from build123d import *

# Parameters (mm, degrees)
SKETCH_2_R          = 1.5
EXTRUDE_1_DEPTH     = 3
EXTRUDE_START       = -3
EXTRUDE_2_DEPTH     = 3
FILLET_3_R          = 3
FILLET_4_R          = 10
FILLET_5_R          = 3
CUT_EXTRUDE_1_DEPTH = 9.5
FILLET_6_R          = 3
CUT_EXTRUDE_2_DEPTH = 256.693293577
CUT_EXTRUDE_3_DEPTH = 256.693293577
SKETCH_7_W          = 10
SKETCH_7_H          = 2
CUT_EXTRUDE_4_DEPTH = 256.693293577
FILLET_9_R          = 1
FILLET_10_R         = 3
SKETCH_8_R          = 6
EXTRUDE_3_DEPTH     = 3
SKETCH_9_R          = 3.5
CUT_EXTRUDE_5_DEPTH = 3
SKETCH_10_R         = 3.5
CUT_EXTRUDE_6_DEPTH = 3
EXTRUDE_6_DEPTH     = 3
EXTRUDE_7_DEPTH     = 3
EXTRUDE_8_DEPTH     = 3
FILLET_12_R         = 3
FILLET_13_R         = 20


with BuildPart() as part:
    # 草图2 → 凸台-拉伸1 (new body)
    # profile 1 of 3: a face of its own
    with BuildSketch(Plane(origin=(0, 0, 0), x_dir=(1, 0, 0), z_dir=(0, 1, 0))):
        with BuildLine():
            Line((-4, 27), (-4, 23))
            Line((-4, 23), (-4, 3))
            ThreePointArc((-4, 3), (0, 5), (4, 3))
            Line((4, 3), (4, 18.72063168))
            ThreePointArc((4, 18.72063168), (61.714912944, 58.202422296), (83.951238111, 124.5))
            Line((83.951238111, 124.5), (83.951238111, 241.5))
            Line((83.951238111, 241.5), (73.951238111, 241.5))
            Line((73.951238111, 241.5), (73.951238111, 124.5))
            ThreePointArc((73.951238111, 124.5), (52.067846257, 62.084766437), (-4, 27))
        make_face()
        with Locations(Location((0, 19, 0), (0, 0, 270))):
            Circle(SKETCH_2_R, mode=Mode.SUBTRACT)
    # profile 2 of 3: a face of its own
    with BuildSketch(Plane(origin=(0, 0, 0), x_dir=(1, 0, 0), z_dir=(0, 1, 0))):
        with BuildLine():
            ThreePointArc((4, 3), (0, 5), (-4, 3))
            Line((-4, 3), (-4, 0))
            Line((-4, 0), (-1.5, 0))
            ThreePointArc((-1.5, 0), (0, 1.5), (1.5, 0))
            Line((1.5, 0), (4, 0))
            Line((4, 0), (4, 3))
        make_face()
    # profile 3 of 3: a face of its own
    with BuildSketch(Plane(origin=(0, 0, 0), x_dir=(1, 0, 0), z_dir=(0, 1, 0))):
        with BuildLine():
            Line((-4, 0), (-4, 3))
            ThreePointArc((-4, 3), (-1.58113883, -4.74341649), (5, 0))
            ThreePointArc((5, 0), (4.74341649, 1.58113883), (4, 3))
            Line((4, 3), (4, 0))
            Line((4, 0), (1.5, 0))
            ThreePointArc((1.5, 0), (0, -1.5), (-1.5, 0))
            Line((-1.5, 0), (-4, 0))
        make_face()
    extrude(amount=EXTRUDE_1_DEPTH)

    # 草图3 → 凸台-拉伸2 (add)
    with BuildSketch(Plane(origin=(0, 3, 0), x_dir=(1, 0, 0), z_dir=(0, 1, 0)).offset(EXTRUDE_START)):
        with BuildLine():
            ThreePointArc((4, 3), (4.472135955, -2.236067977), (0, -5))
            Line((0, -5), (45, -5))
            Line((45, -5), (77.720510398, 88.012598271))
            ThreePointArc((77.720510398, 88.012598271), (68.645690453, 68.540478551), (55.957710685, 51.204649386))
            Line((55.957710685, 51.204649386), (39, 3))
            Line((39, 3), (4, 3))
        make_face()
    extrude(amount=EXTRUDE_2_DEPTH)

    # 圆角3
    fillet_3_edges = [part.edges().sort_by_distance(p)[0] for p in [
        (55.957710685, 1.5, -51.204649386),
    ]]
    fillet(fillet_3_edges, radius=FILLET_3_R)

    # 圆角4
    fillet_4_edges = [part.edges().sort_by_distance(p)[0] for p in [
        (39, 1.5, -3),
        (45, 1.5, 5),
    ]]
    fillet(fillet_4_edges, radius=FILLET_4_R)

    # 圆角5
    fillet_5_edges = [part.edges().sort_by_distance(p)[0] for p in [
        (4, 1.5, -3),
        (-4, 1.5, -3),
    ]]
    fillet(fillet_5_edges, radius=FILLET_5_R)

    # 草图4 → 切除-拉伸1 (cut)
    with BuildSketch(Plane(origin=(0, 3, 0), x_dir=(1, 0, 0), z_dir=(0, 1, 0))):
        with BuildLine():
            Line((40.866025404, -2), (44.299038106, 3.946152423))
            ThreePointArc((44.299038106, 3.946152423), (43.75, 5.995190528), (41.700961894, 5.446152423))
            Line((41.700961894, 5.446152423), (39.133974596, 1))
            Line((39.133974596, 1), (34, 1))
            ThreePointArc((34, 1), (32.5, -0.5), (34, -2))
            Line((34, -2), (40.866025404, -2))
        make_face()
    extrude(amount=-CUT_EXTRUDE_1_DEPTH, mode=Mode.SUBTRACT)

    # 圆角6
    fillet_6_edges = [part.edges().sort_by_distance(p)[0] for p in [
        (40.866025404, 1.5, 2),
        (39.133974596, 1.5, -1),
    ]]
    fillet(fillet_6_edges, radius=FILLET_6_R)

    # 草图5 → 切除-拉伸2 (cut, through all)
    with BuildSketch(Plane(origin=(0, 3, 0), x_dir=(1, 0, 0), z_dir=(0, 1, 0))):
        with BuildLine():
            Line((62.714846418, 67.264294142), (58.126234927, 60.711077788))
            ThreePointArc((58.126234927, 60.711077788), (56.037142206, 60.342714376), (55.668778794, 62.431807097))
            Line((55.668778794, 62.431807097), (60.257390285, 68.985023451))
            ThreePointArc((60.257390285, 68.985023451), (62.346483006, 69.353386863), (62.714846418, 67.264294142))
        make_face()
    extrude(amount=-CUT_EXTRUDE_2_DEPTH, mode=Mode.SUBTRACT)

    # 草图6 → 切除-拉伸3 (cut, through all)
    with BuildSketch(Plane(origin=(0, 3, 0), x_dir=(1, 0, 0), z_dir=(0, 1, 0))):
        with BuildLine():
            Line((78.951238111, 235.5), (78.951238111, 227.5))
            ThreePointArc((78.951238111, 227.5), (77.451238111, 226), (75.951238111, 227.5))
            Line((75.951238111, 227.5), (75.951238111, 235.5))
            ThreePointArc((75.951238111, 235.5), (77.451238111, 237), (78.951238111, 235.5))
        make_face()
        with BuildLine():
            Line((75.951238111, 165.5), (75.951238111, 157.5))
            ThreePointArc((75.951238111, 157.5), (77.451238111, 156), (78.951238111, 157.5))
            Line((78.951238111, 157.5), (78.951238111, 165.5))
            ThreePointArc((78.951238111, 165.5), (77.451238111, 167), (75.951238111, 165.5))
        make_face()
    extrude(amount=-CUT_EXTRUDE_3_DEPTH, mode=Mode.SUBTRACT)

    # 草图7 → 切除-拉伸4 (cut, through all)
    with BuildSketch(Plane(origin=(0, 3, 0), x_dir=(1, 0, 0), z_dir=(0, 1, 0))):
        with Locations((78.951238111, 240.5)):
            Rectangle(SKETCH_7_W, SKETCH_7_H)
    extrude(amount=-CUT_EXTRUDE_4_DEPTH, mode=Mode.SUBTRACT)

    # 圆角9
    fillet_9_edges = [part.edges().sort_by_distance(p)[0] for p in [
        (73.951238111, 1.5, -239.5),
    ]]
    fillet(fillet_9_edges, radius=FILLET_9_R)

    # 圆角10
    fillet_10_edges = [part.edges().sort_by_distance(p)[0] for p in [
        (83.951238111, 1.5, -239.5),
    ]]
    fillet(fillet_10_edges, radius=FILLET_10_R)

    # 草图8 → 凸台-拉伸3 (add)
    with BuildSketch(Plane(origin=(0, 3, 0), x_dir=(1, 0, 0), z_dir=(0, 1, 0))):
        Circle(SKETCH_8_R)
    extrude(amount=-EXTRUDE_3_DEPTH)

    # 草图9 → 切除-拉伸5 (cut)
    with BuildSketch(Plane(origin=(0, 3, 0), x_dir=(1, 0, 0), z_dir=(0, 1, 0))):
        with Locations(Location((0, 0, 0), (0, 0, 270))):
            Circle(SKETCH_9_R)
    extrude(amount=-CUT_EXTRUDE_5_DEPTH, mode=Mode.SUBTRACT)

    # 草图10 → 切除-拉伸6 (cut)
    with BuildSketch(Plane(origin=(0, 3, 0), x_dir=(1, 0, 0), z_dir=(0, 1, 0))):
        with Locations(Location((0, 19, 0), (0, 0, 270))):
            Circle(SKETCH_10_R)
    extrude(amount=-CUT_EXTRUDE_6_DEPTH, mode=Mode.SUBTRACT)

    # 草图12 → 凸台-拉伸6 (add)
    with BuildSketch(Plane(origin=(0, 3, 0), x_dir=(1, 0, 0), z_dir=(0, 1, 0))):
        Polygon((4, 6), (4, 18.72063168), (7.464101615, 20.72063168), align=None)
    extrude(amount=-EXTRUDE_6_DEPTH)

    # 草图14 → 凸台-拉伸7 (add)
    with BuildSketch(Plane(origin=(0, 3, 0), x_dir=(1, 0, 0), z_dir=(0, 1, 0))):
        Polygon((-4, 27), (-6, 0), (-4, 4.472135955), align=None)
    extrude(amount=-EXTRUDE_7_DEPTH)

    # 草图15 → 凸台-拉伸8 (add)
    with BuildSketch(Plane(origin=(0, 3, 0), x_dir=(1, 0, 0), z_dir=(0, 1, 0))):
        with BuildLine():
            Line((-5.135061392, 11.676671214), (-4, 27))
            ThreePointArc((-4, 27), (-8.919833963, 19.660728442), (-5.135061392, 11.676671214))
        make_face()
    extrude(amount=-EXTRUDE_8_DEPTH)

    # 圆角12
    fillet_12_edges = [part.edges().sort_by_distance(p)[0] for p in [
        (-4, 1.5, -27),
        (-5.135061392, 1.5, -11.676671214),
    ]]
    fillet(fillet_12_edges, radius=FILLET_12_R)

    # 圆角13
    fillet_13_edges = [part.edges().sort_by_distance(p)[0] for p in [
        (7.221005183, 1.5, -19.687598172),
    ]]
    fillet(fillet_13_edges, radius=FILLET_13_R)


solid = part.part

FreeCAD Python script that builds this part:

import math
import FreeCAD as App
import Part
import Sketcher
Q = App.Units.Quantity


def edges_at(feature, points):
    """Names of the edges that pass closest to the given points."""
    edges = feature.Shape.Edges
    near = lambda p: min(range(len(edges)), key=lambda i: edges[i].distToShape(Part.Vertex(*p))[0])
    return sorted({f"Edge{near(p) + 1}" for p in points})

doc = App.newDocument("Part")
body = doc.addObject("PartDesign::Body", "Body")

# Sketch on XZ plane
sketch1 = body.newObject("Sketcher::SketchObject", "Sketch")
sketch1.AttachmentSupport = (doc.getObject("XZ_Plane"), [""])
sketch1.MapMode = "FlatFace"
sketch1.addGeometry([
    Part.LineSegment(App.Vector(-4, -27, 0), App.Vector(-4, -3, 0)),  # 0
    Part.ArcOfCircle(Part.Circle(App.Vector(0, 0, 0), App.Vector(0, 0, 1), 5), math.radians(0), math.radians(217)),  # 1
    Part.ArcOfCircle(Part.Circle(App.Vector(0, 0, 0), App.Vector(0, 0, 1), 5), math.radians(-37), math.radians(0)),  # 2
    Part.LineSegment(App.Vector(4, -3, 0), App.Vector(4, -18.7, 0)),  # 3
    Part.ArcOfCircle(Part.Circle(App.Vector(-26, -124.5, 0), App.Vector(0, 0, 1), 110), math.radians(0), math.radians(74)),  # 4
    Part.LineSegment(App.Vector(84, -124.5, 0), App.Vector(84, -241.5, 0)),  # 5
    Part.LineSegment(App.Vector(84, -241.5, 0), App.Vector(74, -241.5, 0)),  # 6
    Part.LineSegment(App.Vector(74, -241.5, 0), App.Vector(74, -124.5, 0)),  # 7
    Part.ArcOfCircle(Part.Circle(App.Vector(-26, -124.5, 0), App.Vector(0, 0, 1), 100), math.radians(0), math.radians(77)),  # 8
    Part.Circle(App.Vector(0, -19, 0), App.Vector(0, 0, 1), 1.5),  # 9
    Part.Circle(App.Vector(0, 0, 0), App.Vector(0, 0, 1), 1.5),  # 10
], False)
sketch1.addConstraint([
    Sketcher.Constraint("Coincident", 0, 2, 1, 2),
    Sketcher.Constraint("Tangent", 1, 1, 2, 2),
    Sketcher.Constraint("Coincident", 2, 1, 3, 1),
    Sketcher.Constraint("Coincident", 3, 2, 4, 2),
    Sketcher.Constraint("Tangent", 4, 1, 5, 1),
    Sketcher.Constraint("Coincident", 5, 2, 6, 1),
    Sketcher.Constraint("Coincident", 6, 2, 7, 1),
    Sketcher.Constraint("Tangent", 7, 2, 8, 1),
    Sketcher.Constraint("Coincident", 8, 2, 0, 1),
    Sketcher.Constraint("Vertical", 0),
    Sketcher.Constraint("Vertical", 3),
    Sketcher.Constraint("Vertical", 5),
    Sketcher.Constraint("Horizontal", 6),
    Sketcher.Constraint("Vertical", 7),
    Sketcher.Constraint("Coincident", 1, 3, -1, 1),
    Sketcher.Constraint("Coincident", 10, 3, -1, 1),
    Sketcher.Constraint("Coincident", 8, 3, 4, 3),
    Sketcher.Constraint("Equal", 1, 2),
    Sketcher.Constraint("Equal", 9, 10),
    Sketcher.Constraint("PointOnObject", 9, 3, -2),
    Sketcher.Constraint("PointOnObject", 1, 1, -1),
    Sketcher.Constraint("Horizontal", 0, 2, 2, 1),
    Sketcher.Constraint("Diameter", 9, 3.0),
    Sketcher.Constraint("Radius", 1, 5.0),
    Sketcher.Constraint("DistanceX", 6, 2, 6, 1, 10.0),
    Sketcher.Constraint("DistanceY", 0, 1, 0, 2, 24.0),
    Sketcher.Constraint("DistanceY", 5, 2, 5, 1, 117.0),
    Sketcher.Constraint("DistanceX", 4, 3, -1, 1, 26.0),
    Sketcher.Constraint("DistanceY", 9, 3, -1, 1, 19.0),
    Sketcher.Constraint("DistanceX", 0, 2, -1, 1, 4.0),
    Sketcher.Constraint("DistanceY", 4, 3, -1, 1, 124.5),
])
pad1 = body.newObject("PartDesign::Pad", "Pad")
pad1.Profile = sketch1
pad1.Length = 3
pad1.Reversed = True

# Sketch on XZ plane
sketch2 = body.newObject("Sketcher::SketchObject", "Sketch001")
sketch2.AttachmentSupport = (doc.getObject("XZ_Plane"), [""])
sketch2.MapMode = "FlatFace"
sketch2.addGeometry([
    Part.ArcOfCircle(Part.Circle(App.Vector(0, 0, 0), App.Vector(0, 0, 1), 5), math.radians(-37), math.radians(90)),  # 0
    Part.LineSegment(App.Vector(0, 5, 0), App.Vector(45, 5, 0)),  # 1
    Part.LineSegment(App.Vector(45, 5, 0), App.Vector(78, -88, 0)),  # 2
    Part.ArcOfCircle(Part.Circle(App.Vector(-26, -125, 0), App.Vector(0, 0, 1), 110), math.radians(19), math.radians(42)),  # 3
    Part.LineSegment(App.Vector(56, -51, 0), App.Vector(39, -3, 0)),  # 4
    Part.LineSegment(App.Vector(39, -3, 0), App.Vector(4, -3, 0)),  # 5
], False)
sketch2.addConstraint([
    Sketcher.Constraint("Tangent", 0, 2, 1, 1),
    Sketcher.Constraint("Coincident", 1, 2, 2, 1),
    Sketcher.Constraint("Tangent", 2, 2, 3, 1),
    Sketcher.Constraint("Coincident", 3, 2, 4, 1),
    Sketcher.Constraint("Coincident", 4, 2, 5, 1),
    Sketcher.Constraint("Coincident", 5, 2, 0, 1),
    Sketcher.Constraint("Horizontal", 1),
    Sketcher.Constraint("Horizontal", 5),
    Sketcher.Constraint("Coincident", 0, 3, -1, 1),
    Sketcher.Constraint("Parallel", 2, 4),
    Sketcher.Constraint("Radius", 0, 5.0),
    Sketcher.Constraint("DistanceX", 1, 1, 1, 2, 45.0),
    Sketcher.Constraint("DistanceX", 5, 2, 5, 1, 35.0),
    Sketcher.Constraint("DistanceX", 3, 3, -1, 1, 26.0),
    Sketcher.Constraint("DistanceX", -1, 1, 4, 2, 39.0),
    Sketcher.Constraint("DistanceY", 3, 3, -1, 1, 124.5),
    Sketcher.Constraint("Radius", 3, 109.951238),
])
pad2 = body.newObject("PartDesign::Pad", "Pad001")
pad2.Profile = sketch2
pad2.Length = 3
pad2.Reversed = True
doc.recompute()

fillet = body.newObject("PartDesign::Fillet", "Fillet")
fillet.Base = (pad2, edges_at(pad2, [(55.958, 1.5, -51.205)]))
fillet.Radius = 3
doc.recompute()

fillet2 = body.newObject("PartDesign::Fillet", "Fillet001")
fillet2.Base = (fillet, edges_at(fillet, [(39, 1.5, -3), (45, 1.5, 5)]))
fillet2.Radius = 10
doc.recompute()

fillet3 = body.newObject("PartDesign::Fillet", "Fillet002")
fillet3.Base = (fillet2, edges_at(fillet2, [(4, 1.5, -3), (-4, 1.5, -3)]))
fillet3.Radius = 3

# Sketch on XZ plane
sketch3 = body.newObject("Sketcher::SketchObject", "Sketch002")
sketch3.AttachmentSupport = (doc.getObject("XZ_Plane"), [""])
sketch3.MapMode = "FlatFace"
sketch3.AttachmentOffset = App.Placement(App.Vector(0, 0, -3), App.Rotation())
sketch3.addGeometry([
    Part.LineSegment(App.Vector(40.9, 2, 0), App.Vector(44.3, -3.9, 0)),  # 0
    Part.ArcOfCircle(Part.Circle(App.Vector(43, -4.7, 0), App.Vector(0, 0, 1), 1.5), math.radians(-150), math.radians(30)),  # 1
    Part.LineSegment(App.Vector(41.7, -5.4, 0), App.Vector(39.1, -1, 0)),  # 2
    Part.LineSegment(App.Vector(39.1, -1, 0), App.Vector(34, -1, 0)),  # 3
    Part.ArcOfCircle(Part.Circle(App.Vector(34, 0.5, 0), App.Vector(0, 0, 1), 1.5), math.radians(90), math.radians(270)),  # 4
    Part.LineSegment(App.Vector(34, 2, 0), App.Vector(40.9, 2, 0)),  # 5
], False)
sketch3.addConstraint([
    Sketcher.Constraint("Tangent", 0, 2, 1, 2),
    Sketcher.Constraint("Tangent", 1, 1, 2, 1),
    Sketcher.Constraint("Coincident", 2, 2, 3, 1),
    Sketcher.Constraint("Tangent", 3, 2, 4, 2),
    Sketcher.Constraint("Tangent", 4, 1, 5, 1),
    Sketcher.Constraint("Coincident", 5, 2, 0, 1),
    Sketcher.Constraint("Horizontal", 3),
    Sketcher.Constraint("Horizontal", 5),
    Sketcher.Constraint("Equal", 1, 4),
    Sketcher.Constraint("Parallel", 0, 2),
    Sketcher.Constraint("Radius", 1, 1.5),
    Sketcher.Constraint("Angle", 0, Q("-60 deg")),
    Sketcher.Constraint("DistanceX", -1, 1, 1, 3, 43.0),
    Sketcher.Constraint("DistanceX", -1, 1, 4, 3, 34.0),
    Sketcher.Constraint("DistanceY", 2, 2, -1, 1, 1.0),
    Sketcher.Constraint("DistanceX", 3, 2, 3, 1, 5.133975),
])
pocket1 = body.newObject("PartDesign::Pocket", "Pocket")
pocket1.Profile = sketch3
pocket1.Length = 9.5
pocket1.Reversed = True
doc.recompute()

fillet4 = body.newObject("PartDesign::Fillet", "Fillet003")
fillet4.Base = (pocket1, edges_at(pocket1, [(40.866, 1.5, 2), (39.134, 1.5, -1)]))
fillet4.Radius = 3

# Sketch on XZ plane
sketch4 = body.newObject("Sketcher::SketchObject", "Sketch003")
sketch4.AttachmentSupport = (doc.getObject("XZ_Plane"), [""])
sketch4.MapMode = "FlatFace"
sketch4.AttachmentOffset = App.Placement(App.Vector(0, 0, -3), App.Rotation())
sketch4.addGeometry([
    Part.LineSegment(App.Vector(58.1, -60.7, 0), App.Vector(62.7, -67.3, 0)),
    Part.ArcOfCircle(Part.Circle(App.Vector(61.5, -68.1, 0), App.Vector(0, 0, 1), 1.5), math.radians(-145), math.radians(35)),
    Part.LineSegment(App.Vector(60.3, -69, 0), App.Vector(55.7, -62.4, 0)),
    Part.ArcOfCircle(Part.Circle(App.Vector(56.9, -61.6, 0), App.Vector(0, 0, 1), 1.5), math.radians(35), math.radians(215)),
], False)
sketch4.addConstraint([
    Sketcher.Constraint("Tangent", 0, 2, 1, 2),
    Sketcher.Constraint("Tangent", 1, 1, 2, 1),
    Sketcher.Constraint("Tangent", 2, 2, 3, 2),
    Sketcher.Constraint("Tangent", 3, 1, 0, 1),
    Sketcher.Constraint("Equal", 1, 3),
    Sketcher.Constraint("Radius", 1, 1.5),
    Sketcher.Constraint("Angle", 0, Q("-55 deg")),
    Sketcher.Constraint("Distance", 0, 8.0),
    Sketcher.Constraint("DistanceX", -1, 1, 1, 3, 61.486118),
    Sketcher.Constraint("DistanceY", 1, 3, -1, 1, 68.124659),
])
pocket2 = body.newObject("PartDesign::Pocket", "Pocket001")
pocket2.Profile = sketch4
pocket2.Type = "ThroughAll"
pocket2.Reversed = True

# Sketch on XZ plane
sketch5 = body.newObject("Sketcher::SketchObject", "Sketch004")
sketch5.AttachmentSupport = (doc.getObject("XZ_Plane"), [""])
sketch5.MapMode = "FlatFace"
sketch5.AttachmentOffset = App.Placement(App.Vector(0, 0, -3), App.Rotation())
sketch5.addGeometry([
    Part.LineSegment(App.Vector(79, -227.5, 0), App.Vector(79, -235.5, 0)),  # 0
    Part.ArcOfCircle(Part.Circle(App.Vector(77.5, -235.5, 0), App.Vector(0, 0, 1), 1.5), math.radians(180), math.radians(360)),  # 1
    Part.LineSegment(App.Vector(76, -235.5, 0), App.Vector(76, -227.5, 0)),  # 2
    Part.ArcOfCircle(Part.Circle(App.Vector(77.5, -227.5, 0), App.Vector(0, 0, 1), 1.5), math.radians(0), math.radians(180)),  # 3
    Part.LineSegment(App.Vector(76, -165.5, 0), App.Vector(76, -157.5, 0)),  # 4
    Part.ArcOfCircle(Part.Circle(App.Vector(77.5, -157.5, 0), App.Vector(0, 0, 1), 1.5), math.radians(0), math.radians(180)),  # 5
    Part.LineSegment(App.Vector(79, -157.5, 0), App.Vector(79, -165.5, 0)),  # 6
    Part.ArcOfCircle(Part.Circle(App.Vector(77.5, -165.5, 0), App.Vector(0, 0, 1), 1.5), math.radians(180), math.radians(360)),  # 7
], False)
sketch5.addConstraint([
    Sketcher.Constraint("Tangent", 0, 2, 1, 2),
    Sketcher.Constraint("Tangent", 1, 1, 2, 1),
    Sketcher.Constraint("Tangent", 2, 2, 3, 2),
    Sketcher.Constraint("Tangent", 3, 1, 0, 1),
    Sketcher.Constraint("Tangent", 4, 2, 5, 2),
    Sketcher.Constraint("Tangent", 5, 1, 6, 1),
    Sketcher.Constraint("Tangent", 6, 2, 7, 2),
    Sketcher.Constraint("Tangent", 7, 1, 4, 1),
    Sketcher.Constraint("Vertical", 0),
    Sketcher.Constraint("Vertical", 2),
    Sketcher.Constraint("Vertical", 4),
    Sketcher.Constraint("Vertical", 6),
    Sketcher.Constraint("Equal", 3, 5),
    Sketcher.Constraint("Vertical", 3, 3, 5, 3),
    Sketcher.Constraint("Equal", 2, 4),
    Sketcher.Constraint("Radius", 1, 1.5),
    Sketcher.Constraint("DistanceY", 0, 2, 0, 1, 8.0),
    Sketcher.Constraint("DistanceY", 3, 3, 5, 3, 70.0),
    Sketcher.Constraint("DistanceY", 1, 3, -1, 1, 235.5),
    Sketcher.Constraint("DistanceX", -1, 1, 1, 3, 77.451238),
])
pocket3 = body.newObject("PartDesign::Pocket", "Pocket002")
pocket3.Profile = sketch5
pocket3.Type = "ThroughAll"
pocket3.Reversed = True

# Sketch on XZ plane
sketch6 = body.newObject("Sketcher::SketchObject", "Sketch005")
sketch6.AttachmentSupport = (doc.getObject("XZ_Plane"), [""])
sketch6.MapMode = "FlatFace"
sketch6.AttachmentOffset = App.Placement(App.Vector(0, 0, -3), App.Rotation())
sketch6.addGeometry([
    Part.LineSegment(App.Vector(74, -241.5, 0), App.Vector(74, -239.5, 0)),
    Part.LineSegment(App.Vector(74, -239.5, 0), App.Vector(84, -239.5, 0)),
    Part.LineSegment(App.Vector(84, -239.5, 0), App.Vector(84, -241.5, 0)),
    Part.LineSegment(App.Vector(84, -241.5, 0), App.Vector(74, -241.5, 0)),
], False)
sketch6.addConstraint([
    Sketcher.Constraint("Coincident", 0, 2, 1, 1),
    Sketcher.Constraint("Coincident", 1, 2, 2, 1),
    Sketcher.Constraint("Coincident", 2, 2, 3, 1),
    Sketcher.Constraint("Coincident", 3, 2, 0, 1),
    Sketcher.Constraint("Vertical", 0),
    Sketcher.Constraint("Horizontal", 1),
    Sketcher.Constraint("Vertical", 2),
    Sketcher.Constraint("Horizontal", 3),
    Sketcher.Constraint("DistanceX", 1, 1, 1, 2, 10.0),
    Sketcher.Constraint("DistanceY", 0, 1, 0, 2, 2.0),
    Sketcher.Constraint("DistanceY", 0, 2, -1, 1, 239.5),
    Sketcher.Constraint("DistanceX", -1, 1, 0, 2, 73.951238),
])
pocket4 = body.newObject("PartDesign::Pocket", "Pocket003")
pocket4.Profile = sketch6
pocket4.Type = "ThroughAll"
pocket4.Reversed = True
doc.recompute()

fillet5 = body.newObject("PartDesign::Fillet", "Fillet004")
fillet5.Base = (pocket4, edges_at(pocket4, [(73.951, 1.5, -239.5)]))
fillet5.Radius = 1
doc.recompute()

fillet6 = body.newObject("PartDesign::Fillet", "Fillet005")
fillet6.Base = (fillet5, edges_at(fillet5, [(83.951, 1.5, -239.5)]))
fillet6.Radius = 3

# Sketch on XZ plane
sketch7 = body.newObject("Sketcher::SketchObject", "Sketch006")
sketch7.AttachmentSupport = (doc.getObject("XZ_Plane"), [""])
sketch7.MapMode = "FlatFace"
sketch7.AttachmentOffset = App.Placement(App.Vector(0, 0, -3), App.Rotation())
sketch7.addGeometry(Part.Circle(App.Vector(0, 0, 0), App.Vector(0, 0, 1), 6), False)
sketch7.addConstraint([
    Sketcher.Constraint("Coincident", 0, 3, -1, 1),
    Sketcher.Constraint("Diameter", 0, 12.0),
])
pad3 = body.newObject("PartDesign::Pad", "Pad002")
pad3.Profile = sketch7
pad3.Length = 3

# Sketch on XZ plane
sketch8 = body.newObject("Sketcher::SketchObject", "Sketch007")
sketch8.AttachmentSupport = (doc.getObject("XZ_Plane"), [""])
sketch8.MapMode = "FlatFace"
sketch8.AttachmentOffset = App.Placement(App.Vector(0, 0, -3), App.Rotation())
sketch8.addGeometry(Part.Circle(App.Vector(0, 0, 0), App.Vector(0, 0, 1), 3.5), False)
sketch8.addConstraint([
    Sketcher.Constraint("Coincident", 0, 3, -1, 1),
    Sketcher.Constraint("Diameter", 0, 7.0),
])
pocket5 = body.newObject("PartDesign::Pocket", "Pocket004")
pocket5.Profile = sketch8
pocket5.Length = 3
pocket5.Reversed = True

# Sketch on XZ plane
sketch9 = body.newObject("Sketcher::SketchObject", "Sketch008")
sketch9.AttachmentSupport = (doc.getObject("XZ_Plane"), [""])
sketch9.MapMode = "FlatFace"
sketch9.AttachmentOffset = App.Placement(App.Vector(0, 0, -3), App.Rotation())
sketch9.addGeometry(Part.Circle(App.Vector(0, -19, 0), App.Vector(0, 0, 1), 3.5), False)
sketch9.addConstraint([
    Sketcher.Constraint("PointOnObject", 0, 3, -2),
    Sketcher.Constraint("Diameter", 0, 7.0),
    Sketcher.Constraint("DistanceY", 0, 3, -1, 1, 19.0),
])
pocket6 = body.newObject("PartDesign::Pocket", "Pocket005")
pocket6.Profile = sketch9
pocket6.Length = 3
pocket6.Reversed = True

# Sketch on XZ plane
sketch10 = body.newObject("Sketcher::SketchObject", "Sketch009")
sketch10.AttachmentSupport = (doc.getObject("XZ_Plane"), [""])
sketch10.MapMode = "FlatFace"
sketch10.AttachmentOffset = App.Placement(App.Vector(0, 0, -3), App.Rotation())
sketch10.addGeometry([
    Part.LineSegment(App.Vector(4, -18.7, 0), App.Vector(4, -6, 0)),
    Part.LineSegment(App.Vector(4, -6, 0), App.Vector(7.5, -20.7, 0)),
    Part.LineSegment(App.Vector(7.5, -20.7, 0), App.Vector(4, -18.7, 0)),
], False)
sketch10.addConstraint([
    Sketcher.Constraint("Coincident", 0, 2, 1, 1),
    Sketcher.Constraint("Coincident", 1, 2, 2, 1),
    Sketcher.Constraint("Coincident", 2, 2, 0, 1),
    Sketcher.Constraint("Vertical", 0),
    Sketcher.Constraint("Angle", 2, Q("150 deg")),
    Sketcher.Constraint("Distance", 2, 4.0),
    Sketcher.Constraint("DistanceX", -1, 1, 0, 2, 4.0),
    Sketcher.Constraint("DistanceY", 0, 2, -1, 1, 6.0),
    Sketcher.Constraint("DistanceY", 0, 1, 0, 2, 12.720632),
])
pad4 = body.newObject("PartDesign::Pad", "Pad003")
pad4.Profile = sketch10
pad4.Length = 3

# Sketch on XZ plane
sketch11 = body.newObject("Sketcher::SketchObject", "Sketch010")
sketch11.AttachmentSupport = (doc.getObject("XZ_Plane"), [""])
sketch11.MapMode = "FlatFace"
sketch11.AttachmentOffset = App.Placement(App.Vector(0, 0, -3), App.Rotation())
sketch11.addGeometry([
    Part.LineSegment(App.Vector(-4, -27, 0), App.Vector(-6, 0, 0)),
    Part.LineSegment(App.Vector(-6, 0, 0), App.Vector(-4, -4.5, 0)),
    Part.LineSegment(App.Vector(-4, -4.5, 0), App.Vector(-4, -27, 0)),
], False)
sketch11.addConstraint([
    Sketcher.Constraint("Coincident", 0, 2, 1, 1),
    Sketcher.Constraint("Coincident", 1, 2, 2, 1),
    Sketcher.Constraint("Coincident", 2, 2, 0, 1),
    Sketcher.Constraint("Vertical", 2),
    Sketcher.Constraint("PointOnObject", 0, 2, -1),
    Sketcher.Constraint("DistanceX", 0, 2, -1, 1, 6.0),
    Sketcher.Constraint("DistanceX", 1, 2, -1, 1, 4.0),
    Sketcher.Constraint("DistanceY", 2, 2, -1, 1, 27.0),
    Sketcher.Constraint("Distance", 1, 4.898979),
])
pad5 = body.newObject("PartDesign::Pad", "Pad004")
pad5.Profile = sketch11
pad5.Length = 3

# Sketch on XZ plane
sketch12 = body.newObject("Sketcher::SketchObject", "Sketch011")
sketch12.AttachmentSupport = (doc.getObject("XZ_Plane"), [""])
sketch12.MapMode = "FlatFace"
sketch12.AttachmentOffset = App.Placement(App.Vector(0, 0, -3), App.Rotation())
sketch12.addGeometry([
    Part.LineSegment(App.Vector(-5, -12, 0), App.Vector(-4, -27, 0)),
    Part.ArcOfCircle(Part.Circle(App.Vector(0, -19, 0), App.Vector(0, 0, 1), 9), math.radians(125), math.radians(243)),
], False)
sketch12.addConstraint([
    Sketcher.Constraint("Coincident", 0, 1, 1, 1),
    Sketcher.Constraint("Coincident", 1, 2, 0, 2),
    Sketcher.Constraint("PointOnObject", 1, 3, -2),
    Sketcher.Constraint("DistanceY", 1, 3, -1, 1, 19.0),
    Sketcher.Constraint("DistanceX", 1, 2, -1, 1, 4.0),
    Sketcher.Constraint("DistanceY", 1, 2, -1, 1, 27.0),
    Sketcher.Constraint("Distance", 0, 15.365311),
])
pad6 = body.newObject("PartDesign::Pad", "Pad005")
pad6.Profile = sketch12
pad6.Length = 3
doc.recompute()

fillet7 = body.newObject("PartDesign::Fillet", "Fillet006")
fillet7.Base = (pad6, edges_at(pad6, [(-4, 1.5, -27), (-5.135, 1.5, -11.677)]))
fillet7.Radius = 3
doc.recompute()

fillet8 = body.newObject("PartDesign::Fillet", "Fillet007")
fillet8.Base = (fillet7, edges_at(fillet7, [(7.221, 1.5, -19.688)]))
fillet8.Radius = 20

doc.recompute()
